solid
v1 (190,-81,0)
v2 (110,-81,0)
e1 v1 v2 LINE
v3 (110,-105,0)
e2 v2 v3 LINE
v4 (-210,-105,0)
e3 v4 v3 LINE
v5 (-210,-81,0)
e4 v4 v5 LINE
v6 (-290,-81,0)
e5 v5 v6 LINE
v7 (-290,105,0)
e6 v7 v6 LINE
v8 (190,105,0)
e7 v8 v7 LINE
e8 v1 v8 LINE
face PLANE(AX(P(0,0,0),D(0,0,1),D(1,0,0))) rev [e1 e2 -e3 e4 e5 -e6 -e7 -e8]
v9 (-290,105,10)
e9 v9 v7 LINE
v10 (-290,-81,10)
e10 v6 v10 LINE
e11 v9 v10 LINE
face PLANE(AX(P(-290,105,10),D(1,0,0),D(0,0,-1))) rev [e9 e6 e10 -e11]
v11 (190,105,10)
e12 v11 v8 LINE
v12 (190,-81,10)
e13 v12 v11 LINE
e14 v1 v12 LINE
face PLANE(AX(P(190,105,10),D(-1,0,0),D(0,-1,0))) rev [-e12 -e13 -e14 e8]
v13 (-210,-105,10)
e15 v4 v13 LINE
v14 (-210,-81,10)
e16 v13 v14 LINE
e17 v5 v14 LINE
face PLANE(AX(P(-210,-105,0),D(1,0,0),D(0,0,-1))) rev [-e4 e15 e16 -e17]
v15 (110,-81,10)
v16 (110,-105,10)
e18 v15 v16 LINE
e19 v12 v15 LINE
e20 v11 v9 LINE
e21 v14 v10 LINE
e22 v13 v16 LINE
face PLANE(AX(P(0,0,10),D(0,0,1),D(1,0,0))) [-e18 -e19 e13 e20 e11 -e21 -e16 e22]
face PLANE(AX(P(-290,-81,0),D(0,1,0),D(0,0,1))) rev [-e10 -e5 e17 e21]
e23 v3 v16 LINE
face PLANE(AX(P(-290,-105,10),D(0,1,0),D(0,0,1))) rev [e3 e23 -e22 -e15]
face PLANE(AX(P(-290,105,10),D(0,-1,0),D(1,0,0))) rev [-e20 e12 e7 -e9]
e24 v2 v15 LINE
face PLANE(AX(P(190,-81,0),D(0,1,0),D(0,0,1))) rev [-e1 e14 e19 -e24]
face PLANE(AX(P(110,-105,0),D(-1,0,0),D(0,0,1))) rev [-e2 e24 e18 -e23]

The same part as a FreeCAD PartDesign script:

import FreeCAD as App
import Part
import Sketcher
Q = App.Units.Quantity

doc = App.newDocument("Part")
body = doc.addObject("PartDesign::Body", "Body")

# Sketch on XY plane
sketch1 = body.newObject("Sketcher::SketchObject", "Sketch")
sketch1.AttachmentSupport = (doc.getObject("XY_Plane"), [""])
sketch1.MapMode = "FlatFace"
sketch1.addGeometry([
    Part.LineSegment(App.Vector(-290, 105, 0), App.Vector(-290, -105, 0)),
    Part.LineSegment(App.Vector(-290, -105, 0), App.Vector(190, -105, 0)),
    Part.LineSegment(App.Vector(190, -105, 0), App.Vector(190, 105, 0)),
    Part.LineSegment(App.Vector(190, 105, 0), App.Vector(-290, 105, 0)),
], False)
sketch1.addConstraint([
    Sketcher.Constraint("Coincident", 0, 2, 1, 1),
    Sketcher.Constraint("Coincident", 1, 2, 2, 1),
    Sketcher.Constraint("Coincident", 2, 2, 3, 1),
    Sketcher.Constraint("Coincident", 3, 2, 0, 1),
    Sketcher.Constraint("Vertical", 0),
    Sketcher.Constraint("Horizontal", 1),
    Sketcher.Constraint("Vertical", 2),
    Sketcher.Constraint("Horizontal", 3),
    Sketcher.Constraint("DistanceX", 1, 1, 1, 2, Q("480 mm")),
    Sketcher.Constraint("DistanceY", 0, 2, 0, 1, Q("210 mm")),
    Sketcher.Constraint("DistanceX", 0, 2, -1, 1, Q("290 mm")),
    Sketcher.Constraint("DistanceY", 0, 2, -1, 1, Q("105 mm")),
])
pad1 = body.newObject("PartDesign::Pad", "Pad")
pad1.Profile = sketch1
pad1.Length = 10

# Sketch on XY plane
sketch2 = body.newObject("Sketcher::SketchObject", "Sketch001")
sketch2.AttachmentSupport = (doc.getObject("XY_Plane"), [""])
sketch2.MapMode = "FlatFace"
sketch2.AttachmentOffset = App.Placement(App.Vector(0, 0, 10), App.Rotation())
sketch2.addGeometry([
    Part.LineSegment(App.Vector(110, -81, 0), App.Vector(110, -105, 0)),  # 0
    Part.LineSegment(App.Vector(110, -105, 0), App.Vector(190, -105, 0)),  # 1
    Part.LineSegment(App.Vector(190, -105, 0), App.Vector(190, -81, 0)),  # 2
    Part.LineSegment(App.Vector(190, -81, 0), App.Vector(110, -81, 0)),  # 3
    Part.LineSegment(App.Vector(-290, -81, 0), App.Vector(-290, -105, 0)),  # 4
    Part.LineSegment(App.Vector(-290, -105, 0), App.Vector(-210, -105, 0)),  # 5
    Part.LineSegment(App.Vector(-210, -105, 0), App.Vector(-210, -81, 0)),  # 6
    Part.LineSegment(App.Vector(-210, -81, 0), App.Vector(-290, -81, 0)),  # 7
], False)
sketch2.addConstraint([
    Sketcher.Constraint("Coincident", 0, 2, 1, 1),
    Sketcher.Constraint("Coincident", 1, 2, 2, 1),
    Sketcher.Constraint("Coincident", 2, 2, 3, 1),
    Sketcher.Constraint("Coincident", 3, 2, 0, 1),
    Sketcher.Constraint("Coincident", 4, 2, 5, 1),
    Sketcher.Constraint("Coincident", 5, 2, 6, 1),
    Sketcher.Constraint("Coincident", 6, 2, 7, 1),
    Sketcher.Constraint("Coincident", 7, 2, 4, 1),
    Sketcher.Constraint("Vertical", 0),
    Sketcher.Constraint("Horizontal", 1),
    Sketcher.Constraint("Vertical", 2),
    Sketcher.Constraint("Horizontal", 3),
    Sketcher.Constraint("Vertical", 4),
    Sketcher.Constraint("Horizontal", 5),
    Sketcher.Constraint("Vertical", 6),
    Sketcher.Constraint("Horizontal", 7),
    Sketcher.Constraint("Horizontal", 1, 2, 4, 2),
    Sketcher.Constraint("Horizontal", 3, 2, 6, 2),
    Sketcher.Constraint("Equal", 3, 5),
    Sketcher.Constraint("DistanceX", 1, 1, 1, 2, Q("80 mm")),
    Sketcher.Constraint("DistanceY", 0, 2, 0, 1, Q("24 mm")),
    Sketcher.Constraint("DistanceX", -1, 1, 0, 2, Q("110 mm")),
    Sketcher.Constraint("DistanceY", 0, 2, -1, 1, Q("105 mm")),
    Sketcher.Constraint("DistanceX", 4, 2, -1, 1, Q("290 mm")),
])
pocket1 = body.newObject("PartDesign::Pocket", "Pocket")
pocket1.Profile = sketch2
pocket1.Type = "ThroughAll"

doc.recompute()
